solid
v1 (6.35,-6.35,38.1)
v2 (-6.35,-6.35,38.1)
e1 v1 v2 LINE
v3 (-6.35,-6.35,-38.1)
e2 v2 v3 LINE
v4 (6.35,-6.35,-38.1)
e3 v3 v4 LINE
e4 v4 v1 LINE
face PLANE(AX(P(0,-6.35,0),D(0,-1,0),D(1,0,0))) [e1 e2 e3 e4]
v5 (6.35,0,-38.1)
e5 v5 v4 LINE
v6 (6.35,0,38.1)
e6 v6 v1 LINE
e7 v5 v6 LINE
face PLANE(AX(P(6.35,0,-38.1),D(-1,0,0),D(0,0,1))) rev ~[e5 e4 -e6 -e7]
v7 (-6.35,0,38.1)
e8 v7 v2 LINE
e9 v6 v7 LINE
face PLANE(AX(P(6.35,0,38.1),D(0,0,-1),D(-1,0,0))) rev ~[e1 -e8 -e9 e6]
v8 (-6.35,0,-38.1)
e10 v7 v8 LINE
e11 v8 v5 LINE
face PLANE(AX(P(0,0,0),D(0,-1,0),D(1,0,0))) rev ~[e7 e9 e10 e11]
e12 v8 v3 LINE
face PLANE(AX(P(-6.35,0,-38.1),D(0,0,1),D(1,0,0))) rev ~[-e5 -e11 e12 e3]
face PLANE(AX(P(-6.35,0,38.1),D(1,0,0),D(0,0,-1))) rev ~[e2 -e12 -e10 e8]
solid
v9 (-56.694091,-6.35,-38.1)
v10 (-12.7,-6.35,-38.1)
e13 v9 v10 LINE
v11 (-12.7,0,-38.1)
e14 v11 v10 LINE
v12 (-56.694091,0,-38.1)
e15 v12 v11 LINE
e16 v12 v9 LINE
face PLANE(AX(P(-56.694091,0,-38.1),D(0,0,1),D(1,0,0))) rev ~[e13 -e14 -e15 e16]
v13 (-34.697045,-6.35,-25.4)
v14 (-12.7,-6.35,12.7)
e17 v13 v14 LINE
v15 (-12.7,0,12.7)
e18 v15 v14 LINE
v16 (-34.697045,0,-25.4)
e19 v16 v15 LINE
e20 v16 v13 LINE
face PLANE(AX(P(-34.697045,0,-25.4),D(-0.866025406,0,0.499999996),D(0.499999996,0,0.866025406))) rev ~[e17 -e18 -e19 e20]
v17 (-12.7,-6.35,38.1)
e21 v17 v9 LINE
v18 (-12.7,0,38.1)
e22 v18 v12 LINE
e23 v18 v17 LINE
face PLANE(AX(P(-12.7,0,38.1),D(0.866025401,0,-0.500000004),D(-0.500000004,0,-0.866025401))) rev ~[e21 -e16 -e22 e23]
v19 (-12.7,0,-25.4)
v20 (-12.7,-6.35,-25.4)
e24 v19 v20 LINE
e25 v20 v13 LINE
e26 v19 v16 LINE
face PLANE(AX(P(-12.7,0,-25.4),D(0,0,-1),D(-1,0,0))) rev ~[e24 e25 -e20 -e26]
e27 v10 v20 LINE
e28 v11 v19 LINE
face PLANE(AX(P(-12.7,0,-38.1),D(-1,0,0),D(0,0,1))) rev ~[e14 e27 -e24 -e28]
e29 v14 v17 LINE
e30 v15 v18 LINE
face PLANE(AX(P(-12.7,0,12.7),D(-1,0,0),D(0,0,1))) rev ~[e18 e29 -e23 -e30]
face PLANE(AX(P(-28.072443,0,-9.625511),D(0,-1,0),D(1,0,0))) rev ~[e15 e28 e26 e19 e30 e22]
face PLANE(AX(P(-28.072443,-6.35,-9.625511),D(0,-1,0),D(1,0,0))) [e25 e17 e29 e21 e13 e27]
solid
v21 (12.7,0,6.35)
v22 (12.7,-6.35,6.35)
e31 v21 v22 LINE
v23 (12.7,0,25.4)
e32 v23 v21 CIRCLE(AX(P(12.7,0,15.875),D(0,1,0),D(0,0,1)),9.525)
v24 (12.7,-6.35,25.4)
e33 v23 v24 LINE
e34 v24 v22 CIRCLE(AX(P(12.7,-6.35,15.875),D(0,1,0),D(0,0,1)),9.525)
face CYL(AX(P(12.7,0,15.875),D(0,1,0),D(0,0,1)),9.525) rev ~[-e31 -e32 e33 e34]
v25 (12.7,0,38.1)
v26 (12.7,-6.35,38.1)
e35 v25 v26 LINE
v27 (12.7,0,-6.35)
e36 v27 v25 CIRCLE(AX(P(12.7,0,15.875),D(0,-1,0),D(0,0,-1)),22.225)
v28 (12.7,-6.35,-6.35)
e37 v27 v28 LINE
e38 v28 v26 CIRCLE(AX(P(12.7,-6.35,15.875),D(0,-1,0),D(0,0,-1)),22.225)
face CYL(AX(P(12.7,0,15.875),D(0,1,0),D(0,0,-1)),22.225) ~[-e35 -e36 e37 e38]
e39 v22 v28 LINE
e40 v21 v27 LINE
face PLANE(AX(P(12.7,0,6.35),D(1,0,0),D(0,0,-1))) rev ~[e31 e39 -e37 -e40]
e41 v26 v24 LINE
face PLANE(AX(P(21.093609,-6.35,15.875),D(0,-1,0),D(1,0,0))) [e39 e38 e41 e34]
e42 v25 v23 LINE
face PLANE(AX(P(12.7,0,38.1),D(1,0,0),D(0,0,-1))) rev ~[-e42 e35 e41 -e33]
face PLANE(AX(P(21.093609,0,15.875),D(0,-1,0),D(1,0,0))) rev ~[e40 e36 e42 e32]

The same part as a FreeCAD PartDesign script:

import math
import FreeCAD as App
import Part
import Sketcher

V = App.Vector
Q = App.Units.Quantity

doc = App.newDocument("Part")
body = doc.addObject("PartDesign::Body", "Body")
body.AllowCompound = True

# Sketch on XZ plane
sketch1 = body.newObject("Sketcher::SketchObject", "Sketch")
sketch1.AttachmentSupport = (doc.getObject("XZ_Plane"), [""])
sketch1.MapMode = "FlatFace"
sketch1.addGeometry([
    Part.LineSegment(V(-13, 13, 0), V(-13, 38, 0)),  # 0
    Part.LineSegment(V(-13, 38, 0), V(-57, -38, 0)),  # 1
    Part.LineSegment(V(-57, -38, 0), V(-13, -38, 0)),  # 2
    Part.LineSegment(V(-13, -38, 0), V(-13, -25, 0)),  # 3
    Part.LineSegment(V(-13, -25, 0), V(-35, -25, 0)),  # 4
    Part.LineSegment(V(-35, -25, 0), V(-13, 13, 0)),  # 5
    Part.LineSegment(V(6, 38, 0), V(-6, 38, 0)),  # 6
    Part.LineSegment(V(-6, 38, 0), V(-6, -38, 0)),  # 7
    Part.LineSegment(V(-6, -38, 0), V(6, -38, 0)),  # 8
    Part.LineSegment(V(6, -38, 0), V(6, 38, 0)),  # 9
    Part.ArcOfCircle(Part.Circle(V(13, 16, 0), V(0, 0, 1), 22), math.radians(-90), math.radians(90)),  # 10
    Part.LineSegment(V(13, 38, 0), V(13, 25, 0)),  # 11
    Part.ArcOfCircle(Part.Circle(V(13, 16, 0), V(0, 0, 1), 10), math.radians(-90), math.radians(90)),  # 12
    Part.LineSegment(V(13, 6, 0), V(13, -6, 0)),  # 13
], False)
sketch1.addConstraint([
    Sketcher.Constraint("Coincident", 0, 2, 1, 1),
    Sketcher.Constraint("Coincident", 1, 2, 2, 1),
    Sketcher.Constraint("Coincident", 2, 2, 3, 1),
    Sketcher.Constraint("Coincident", 3, 2, 4, 1),
    Sketcher.Constraint("Coincident", 4, 2, 5, 1),
    Sketcher.Constraint("Coincident", 5, 2, 0, 1),
    Sketcher.Constraint("Coincident", 6, 2, 7, 1),
    Sketcher.Constraint("Coincident", 7, 2, 8, 1),
    Sketcher.Constraint("Coincident", 8, 2, 9, 1),
    Sketcher.Constraint("Coincident", 9, 2, 6, 1),
    Sketcher.Constraint("Coincident", 10, 2, 11, 1),
    Sketcher.Constraint("Coincident", 11, 2, 12, 2),
    Sketcher.Constraint("Coincident", 12, 1, 13, 1),
    Sketcher.Constraint("Coincident", 13, 2, 10, 1),
    Sketcher.Constraint("Vertical", 0),
    Sketcher.Constraint("Horizontal", 2),
    Sketcher.Constraint("Vertical", 3),
    Sketcher.Constraint("Horizontal", 4),
    Sketcher.Constraint("Horizontal", 6),
    Sketcher.Constraint("Vertical", 7),
    Sketcher.Constraint("Horizontal", 8),
    Sketcher.Constraint("Vertical", 9),
    Sketcher.Constraint("Vertical", 11),
    Sketcher.Constraint("Vertical", 13),
    Sketcher.Constraint("Coincident", 12, 3, 10, 3),
    Sketcher.Constraint("Symmetric", 6, 2, 8, 2, -1, 1),
    Sketcher.Constraint("Symmetric", 2, 2, 10, 2, -1, 1),
    Sketcher.Constraint("Symmetric", 0, 2, 10, 2, -2),
    Sketcher.Constraint("Parallel", 1, 5),
    Sketcher.Constraint("Horizontal", 0, 2, 6, 2),
    Sketcher.Constraint("Vertical", 12, 3, 10, 2),
    Sketcher.Constraint("Vertical", 11, 2, 12, 1),
    Sketcher.Constraint("Equal", 8, 3),
    Sketcher.Constraint("Equal", 3, 11),
    Sketcher.Constraint("DistanceY", 0, 1, 0, 2, Q("1 in")),
    Sketcher.Constraint("DistanceY", 7, 2, 7, 1, Q("3 in")),
    Sketcher.Constraint("DistanceX", 6, 2, 6, 1, Q("0.5 in")),
    Sketcher.Constraint("Angle", 1, Q("-120 deg")),
    Sketcher.Constraint("Radius", 10, Q("0.875 in")),
    Sketcher.Constraint("DistanceX", 0, 2, 10, 3, Q("1 in")),
])
pad1 = body.newObject("PartDesign::Pad", "Pad")
pad1.Profile = sketch1
pad1.Length = Q("0.25 in")

doc.recompute()
